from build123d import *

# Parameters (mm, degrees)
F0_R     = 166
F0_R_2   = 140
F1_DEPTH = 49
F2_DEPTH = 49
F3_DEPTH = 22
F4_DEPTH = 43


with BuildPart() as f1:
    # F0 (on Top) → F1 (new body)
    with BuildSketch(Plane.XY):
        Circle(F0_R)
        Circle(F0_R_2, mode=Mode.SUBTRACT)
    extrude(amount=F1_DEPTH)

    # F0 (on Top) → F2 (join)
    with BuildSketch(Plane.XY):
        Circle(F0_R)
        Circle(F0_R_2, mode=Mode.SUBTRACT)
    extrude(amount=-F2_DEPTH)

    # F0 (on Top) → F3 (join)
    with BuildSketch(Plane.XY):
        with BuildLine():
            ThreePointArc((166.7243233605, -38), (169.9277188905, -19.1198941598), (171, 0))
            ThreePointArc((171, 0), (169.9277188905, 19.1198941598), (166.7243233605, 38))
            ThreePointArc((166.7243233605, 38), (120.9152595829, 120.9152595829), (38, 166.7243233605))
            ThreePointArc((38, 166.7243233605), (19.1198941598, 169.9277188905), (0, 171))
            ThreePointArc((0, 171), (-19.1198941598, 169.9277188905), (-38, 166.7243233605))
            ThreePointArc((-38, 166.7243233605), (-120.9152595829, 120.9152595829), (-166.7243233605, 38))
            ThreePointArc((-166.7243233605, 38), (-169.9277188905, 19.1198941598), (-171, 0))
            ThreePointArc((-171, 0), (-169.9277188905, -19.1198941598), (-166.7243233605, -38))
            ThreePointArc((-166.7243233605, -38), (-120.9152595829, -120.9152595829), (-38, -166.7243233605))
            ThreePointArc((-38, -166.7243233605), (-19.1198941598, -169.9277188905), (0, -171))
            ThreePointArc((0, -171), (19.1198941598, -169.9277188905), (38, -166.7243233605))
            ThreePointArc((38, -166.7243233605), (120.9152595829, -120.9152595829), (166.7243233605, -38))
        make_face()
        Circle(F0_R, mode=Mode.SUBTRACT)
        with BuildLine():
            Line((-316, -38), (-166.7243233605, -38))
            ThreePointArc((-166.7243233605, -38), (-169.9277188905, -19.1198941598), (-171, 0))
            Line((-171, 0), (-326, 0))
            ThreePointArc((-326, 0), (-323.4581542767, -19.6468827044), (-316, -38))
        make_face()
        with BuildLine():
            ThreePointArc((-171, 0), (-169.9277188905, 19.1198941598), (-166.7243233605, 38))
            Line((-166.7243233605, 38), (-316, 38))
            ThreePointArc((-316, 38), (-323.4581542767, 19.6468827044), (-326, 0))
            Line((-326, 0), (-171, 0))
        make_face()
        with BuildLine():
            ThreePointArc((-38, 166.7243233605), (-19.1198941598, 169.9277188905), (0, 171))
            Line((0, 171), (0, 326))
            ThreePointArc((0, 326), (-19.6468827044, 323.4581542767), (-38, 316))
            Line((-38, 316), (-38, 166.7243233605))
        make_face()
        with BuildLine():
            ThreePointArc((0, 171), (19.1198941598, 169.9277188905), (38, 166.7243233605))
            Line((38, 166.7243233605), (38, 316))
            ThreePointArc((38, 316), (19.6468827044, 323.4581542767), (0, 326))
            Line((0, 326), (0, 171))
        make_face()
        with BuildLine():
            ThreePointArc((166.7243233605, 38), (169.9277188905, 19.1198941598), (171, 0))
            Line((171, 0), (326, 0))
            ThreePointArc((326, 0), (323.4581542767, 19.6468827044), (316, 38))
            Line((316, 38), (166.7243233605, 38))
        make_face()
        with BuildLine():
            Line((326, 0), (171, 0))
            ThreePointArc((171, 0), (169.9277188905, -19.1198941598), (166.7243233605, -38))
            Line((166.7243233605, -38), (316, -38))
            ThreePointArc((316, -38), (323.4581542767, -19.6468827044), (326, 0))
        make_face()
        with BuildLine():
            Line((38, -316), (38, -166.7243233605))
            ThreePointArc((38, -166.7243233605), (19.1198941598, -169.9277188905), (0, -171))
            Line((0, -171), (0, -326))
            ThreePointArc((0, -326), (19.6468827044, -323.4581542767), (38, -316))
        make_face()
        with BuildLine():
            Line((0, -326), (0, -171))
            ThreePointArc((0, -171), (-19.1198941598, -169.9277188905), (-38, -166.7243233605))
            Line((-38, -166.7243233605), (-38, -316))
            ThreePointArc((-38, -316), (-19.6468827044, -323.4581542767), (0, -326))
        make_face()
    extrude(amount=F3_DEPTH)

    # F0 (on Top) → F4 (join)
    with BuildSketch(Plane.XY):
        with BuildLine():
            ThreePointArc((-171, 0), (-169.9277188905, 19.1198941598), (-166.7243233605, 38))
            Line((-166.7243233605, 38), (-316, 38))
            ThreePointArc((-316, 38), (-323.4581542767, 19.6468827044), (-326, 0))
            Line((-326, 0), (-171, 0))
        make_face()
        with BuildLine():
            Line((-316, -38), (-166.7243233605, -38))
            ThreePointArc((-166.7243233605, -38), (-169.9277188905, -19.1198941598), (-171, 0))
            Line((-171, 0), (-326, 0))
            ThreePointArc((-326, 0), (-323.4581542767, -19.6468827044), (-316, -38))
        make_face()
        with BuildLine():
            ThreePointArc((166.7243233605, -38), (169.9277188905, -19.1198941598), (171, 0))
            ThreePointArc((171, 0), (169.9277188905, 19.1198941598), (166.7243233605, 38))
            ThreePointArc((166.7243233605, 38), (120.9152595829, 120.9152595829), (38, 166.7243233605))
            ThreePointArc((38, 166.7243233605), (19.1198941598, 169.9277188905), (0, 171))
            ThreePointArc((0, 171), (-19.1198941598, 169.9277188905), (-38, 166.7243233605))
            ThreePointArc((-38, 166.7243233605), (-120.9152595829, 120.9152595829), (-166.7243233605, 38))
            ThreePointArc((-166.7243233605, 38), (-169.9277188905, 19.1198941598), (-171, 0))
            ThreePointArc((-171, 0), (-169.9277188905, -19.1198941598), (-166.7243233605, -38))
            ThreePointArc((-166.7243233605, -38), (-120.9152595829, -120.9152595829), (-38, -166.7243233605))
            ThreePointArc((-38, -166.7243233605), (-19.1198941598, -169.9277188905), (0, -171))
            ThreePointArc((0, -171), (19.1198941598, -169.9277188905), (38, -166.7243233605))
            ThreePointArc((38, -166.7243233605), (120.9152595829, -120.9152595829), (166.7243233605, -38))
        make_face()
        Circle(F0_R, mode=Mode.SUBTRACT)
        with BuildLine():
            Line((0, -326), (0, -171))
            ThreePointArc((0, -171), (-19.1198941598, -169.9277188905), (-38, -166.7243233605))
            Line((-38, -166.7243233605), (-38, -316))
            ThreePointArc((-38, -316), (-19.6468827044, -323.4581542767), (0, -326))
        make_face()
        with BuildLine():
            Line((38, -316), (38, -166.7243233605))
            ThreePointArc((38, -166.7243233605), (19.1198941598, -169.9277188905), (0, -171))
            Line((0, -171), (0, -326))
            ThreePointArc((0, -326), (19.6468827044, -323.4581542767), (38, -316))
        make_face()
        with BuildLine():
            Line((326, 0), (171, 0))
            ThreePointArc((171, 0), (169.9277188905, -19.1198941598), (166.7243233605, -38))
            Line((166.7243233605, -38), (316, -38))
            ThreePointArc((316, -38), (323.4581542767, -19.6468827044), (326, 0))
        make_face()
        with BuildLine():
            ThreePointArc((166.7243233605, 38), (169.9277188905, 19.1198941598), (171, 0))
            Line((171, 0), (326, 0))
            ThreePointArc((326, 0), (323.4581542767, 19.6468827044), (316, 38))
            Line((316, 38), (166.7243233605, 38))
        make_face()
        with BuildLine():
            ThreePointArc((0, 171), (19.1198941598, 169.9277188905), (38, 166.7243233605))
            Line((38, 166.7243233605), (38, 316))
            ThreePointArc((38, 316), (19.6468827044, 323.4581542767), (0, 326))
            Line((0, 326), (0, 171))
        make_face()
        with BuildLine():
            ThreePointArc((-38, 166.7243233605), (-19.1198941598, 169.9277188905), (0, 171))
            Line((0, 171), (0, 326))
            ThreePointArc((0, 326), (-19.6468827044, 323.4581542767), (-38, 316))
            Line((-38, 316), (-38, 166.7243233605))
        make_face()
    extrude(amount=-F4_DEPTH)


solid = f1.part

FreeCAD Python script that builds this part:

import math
import FreeCAD as App
import Part
import Sketcher

V = App.Vector

doc = App.newDocument("Part")
body = doc.addObject("PartDesign::Body", "Body")

sketch1 = body.newObject("Sketcher::SketchObject", "Sketch")
sketch1.AttachmentSupport = (doc.getObject("XY_Plane"), [""])
sketch1.MapMode = "FlatFace"
sketch1.addGeometry([
    Part.Circle(V(0, 0, 0), V(0, 0, 1), 166),
    Part.Circle(V(0, 0, 0), V(0, 0, 1), 140),
], False)
sketch1.addConstraint([
    Sketcher.Constraint("Coincident", 0, 3, -1, 1),
    Sketcher.Constraint("Coincident", 1, 3, -1, 1),
    Sketcher.Constraint("Diameter", 0, 332.0),
    Sketcher.Constraint("Diameter", 1, 280.0),
])
pad1 = body.newObject("PartDesign::Pad", "Pad")
pad1.Profile = sketch1
pad1.Length = 49

sketch2 = body.newObject("Sketcher::SketchObject", "Sketch001")
sketch2.AttachmentSupport = (doc.getObject("XY_Plane"), [""])
sketch2.MapMode = "FlatFace"
sketch2.addGeometry([
    Part.Circle(V(0, 0, 0), V(0, 0, 1), 166),
    Part.Circle(V(0, 0, 0), V(0, 0, 1), 140),
], False)
sketch2.addConstraint([
    Sketcher.Constraint("Coincident", 0, 3, -1, 1),
    Sketcher.Constraint("Coincident", 1, 3, -1, 1),
    Sketcher.Constraint("Diameter", 0, 332.0),
    Sketcher.Constraint("Diameter", 1, 280.0),
])
pad2 = body.newObject("PartDesign::Pad", "Pad001")
pad2.Profile = sketch2
pad2.Length = 49
pad2.Reversed = True

sketch3 = body.newObject("Sketcher::SketchObject", "Sketch002")
sketch3.AttachmentSupport = (doc.getObject("XY_Plane"), [""])
sketch3.MapMode = "FlatFace"
sketch3.addGeometry([
    Part.ArcOfCircle(Part.Circle(V(249, 0, 0), V(0, 0, 1), 77), math.radians(0), math.radians(29)),
    Part.LineSegment(V(316, 38, 0), V(167, 38, 0)),
    Part.ArcOfCircle(Part.Circle(V(0, 0, 0), V(0, 0, 1), 171), math.radians(13), math.radians(77)),
    Part.LineSegment(V(38, 167, 0), V(38, 316, 0)),
    Part.ArcOfCircle(Part.Circle(V(0, 249, 0), V(0, 0, 1), 77), math.radians(61), math.radians(90)),
    Part.ArcOfCircle(Part.Circle(V(0, 249, 0), V(0, 0, 1), 77), math.radians(90), math.radians(119)),
    Part.LineSegment(V(-38, 316, 0), V(-38, 167, 0)),
    Part.ArcOfCircle(Part.Circle(V(0, 0, 0), V(0, 0, 1), 171), math.radians(103), math.radians(167)),
    Part.LineSegment(V(-167, 38, 0), V(-316, 38, 0)),
    Part.ArcOfCircle(Part.Circle(V(-249, 0, 0), V(0, 0, 1), 77), math.radians(151), math.radians(180)),
    Part.ArcOfCircle(Part.Circle(V(-249, 0, 0), V(0, 0, 1), 77), math.radians(180), math.radians(209)),
    Part.LineSegment(V(-316, -38, 0), V(-167, -38, 0)),
    Part.ArcOfCircle(Part.Circle(V(0, 0, 0), V(0, 0, 1), 171), math.radians(-167), math.radians(-103)),
    Part.LineSegment(V(-38, -167, 0), V(-38, -316, 0)),
    Part.ArcOfCircle(Part.Circle(V(0, -249, 0), V(0, 0, 1), 77), math.radians(-119), math.radians(-90)),
    Part.ArcOfCircle(Part.Circle(V(0, -249, 0), V(0, 0, 1), 77), math.radians(-90), math.radians(-61)),
    Part.LineSegment(V(38, -316, 0), V(38, -167, 0)),
    Part.ArcOfCircle(Part.Circle(V(0, 0, 0), V(0, 0, 1), 171), math.radians(-77), math.radians(-13)),
    Part.LineSegment(V(167, -38, 0), V(316, -38, 0)),
    Part.ArcOfCircle(Part.Circle(V(249, 0, 0), V(0, 0, 1), 77), math.radians(-29), math.radians(0)),
    Part.Circle(V(0, 0, 0), V(0, 0, 1), 166),
], False)
sketch3.addConstraint([
    Sketcher.Constraint("Coincident", 0, 2, 1, 1),
    Sketcher.Constraint("Coincident", 1, 2, 2, 1),
    Sketcher.Constraint("Coincident", 2, 2, 3, 1),
    Sketcher.Constraint("Coincident", 3, 2, 4, 1),
    Sketcher.Constraint("Tangent", 4, 2, 5, 1),
    Sketcher.Constraint("Coincident", 5, 2, 6, 1),
    Sketcher.Constraint("Coincident", 6, 2, 7, 1),
    Sketcher.Constraint("Coincident", 7, 2, 8, 1),
    Sketcher.Constraint("Coincident", 8, 2, 9, 1),
    Sketcher.Constraint("Tangent", 9, 2, 10, 1),
    Sketcher.Constraint("Coincident", 10, 2, 11, 1),
    Sketcher.Constraint("Coincident", 11, 2, 12, 1),
    Sketcher.Constraint("Coincident", 12, 2, 13, 1),
    Sketcher.Constraint("Coincident", 13, 2, 14, 1),
    Sketcher.Constraint("Tangent", 14, 2, 15, 1),
    Sketcher.Constraint("Coincident", 15, 2, 16, 1),
    Sketcher.Constraint("Coincident", 16, 2, 17, 1),
    Sketcher.Constraint("Coincident", 17, 2, 18, 1),
    Sketcher.Constraint("Coincident", 18, 2, 19, 1),
    Sketcher.Constraint("Tangent", 19, 2, 0, 1),
    Sketcher.Constraint("Horizontal", 1),
    Sketcher.Constraint("Vertical", 3),
    Sketcher.Constraint("Vertical", 6),
    Sketcher.Constraint("Horizontal", 8),
    Sketcher.Constraint("Horizontal", 11),
    Sketcher.Constraint("Vertical", 13),
    Sketcher.Constraint("Vertical", 16),
    Sketcher.Constraint("Horizontal", 18),
    Sketcher.Constraint("Coincident", 2, 3, -1, 1),
    Sketcher.Constraint("Coincident", 7, 3, -1, 1),
    Sketcher.Constraint("Coincident", 12, 3, -1, 1),
    Sketcher.Constraint("Coincident", 17, 3, -1, 1),
    Sketcher.Constraint("Coincident", 20, 3, -1, 1),
    Sketcher.Constraint("Equal", 0, 4),
    Sketcher.Constraint("Equal", 4, 5),
    Sketcher.Constraint("Equal", 2, 7),
    Sketcher.Constraint("Equal", 5, 9),
    Sketcher.Constraint("Equal", 9, 10),
    Sketcher.Constraint("Equal", 7, 12),
    Sketcher.Constraint("Equal", 10, 14),
    Sketcher.Constraint("Equal", 14, 15),
    Sketcher.Constraint("Equal", 12, 17),
    Sketcher.Constraint("Equal", 15, 19),
    Sketcher.Constraint("Symmetric", 0, 3, 9, 3, -1, 1),
    Sketcher.Constraint("Symmetric", 4, 3, 14, 3, -1, 1),
    Sketcher.Constraint("Symmetric", 3, 2, 5, 2, -2),
    Sketcher.Constraint("Symmetric", 0, 2, 8, 2, -2),
    Sketcher.Constraint("PointOnObject", 4, 2, -2),
    Sketcher.Constraint("PointOnObject", 9, 2, -1),
    Sketcher.Constraint("PointOnObject", 14, 2, -2),
    Sketcher.Constraint("PointOnObject", 19, 2, -1),
    Sketcher.Constraint("Horizontal", 13, 2, 15, 2),
    Sketcher.Constraint("Horizontal", 11, 2, 17, 2),
    Sketcher.Constraint("Vertical", 8, 2, 10, 2),
    Sketcher.Constraint("Vertical", 6, 2, 12, 2),
    Sketcher.Constraint("Equal", 18, 3),
    Sketcher.Constraint("Diameter", 20, 332.0),
    Sketcher.Constraint("Radius", 2, 171.0),
    Sketcher.Constraint("Radius", 0, 77.2),
    Sketcher.Constraint("DistanceX", -1, 1, 0, 2, 316.0),
    Sketcher.Constraint("DistanceY", -1, 1, 0, 2, 38.0),
    Sketcher.Constraint("DistanceX", -1, 1, 2, 2, 38.0),
])
pad3 = body.newObject("PartDesign::Pad", "Pad002")
pad3.Profile = sketch3
pad3.Length = 22

sketch4 = body.newObject("Sketcher::SketchObject", "Sketch003")
sketch4.AttachmentSupport = (doc.getObject("XY_Plane"), [""])
sketch4.MapMode = "FlatFace"
sketch4.addGeometry([
    Part.LineSegment(V(-167, 38, 0), V(-316, 38, 0)),
    Part.ArcOfCircle(Part.Circle(V(-249, 0, 0), V(0, 0, 1), 77), math.radians(151), math.radians(180)),
    Part.ArcOfCircle(Part.Circle(V(-249, 0, 0), V(0, 0, 1), 77), math.radians(180), math.radians(209)),
    Part.LineSegment(V(-316, -38, 0), V(-167, -38, 0)),
    Part.ArcOfCircle(Part.Circle(V(0, 0, 0), V(0, 0, 1), 171), math.radians(-167), math.radians(-103)),
    Part.LineSegment(V(-38, -167, 0), V(-38, -316, 0)),
    Part.ArcOfCircle(Part.Circle(V(0, -249, 0), V(0, 0, 1), 77), math.radians(-119), math.radians(-90)),
    Part.ArcOfCircle(Part.Circle(V(0, -249, 0), V(0, 0, 1), 77), math.radians(-90), math.radians(-61)),
    Part.LineSegment(V(38, -316, 0), V(38, -167, 0)),
    Part.ArcOfCircle(Part.Circle(V(0, 0, 0), V(0, 0, 1), 171), math.radians(-77), math.radians(-13)),
    Part.LineSegment(V(167, -38, 0), V(316, -38, 0)),
    Part.ArcOfCircle(Part.Circle(V(249, 0, 0), V(0, 0, 1), 77), math.radians(-29), math.radians(0)),
    Part.ArcOfCircle(Part.Circle(V(249, 0, 0), V(0, 0, 1), 77), math.radians(0), math.radians(29)),
    Part.LineSegment(V(316, 38, 0), V(167, 38, 0)),
    Part.ArcOfCircle(Part.Circle(V(0, 0, 0), V(0, 0, 1), 171), math.radians(13), math.radians(77)),
    Part.LineSegment(V(38, 167, 0), V(38, 316, 0)),
    Part.ArcOfCircle(Part.Circle(V(0, 249, 0), V(0, 0, 1), 77), math.radians(61), math.radians(90)),
    Part.ArcOfCircle(Part.Circle(V(0, 249, 0), V(0, 0, 1), 77), math.radians(90), math.radians(119)),
    Part.LineSegment(V(-38, 316, 0), V(-38, 167, 0)),
    Part.ArcOfCircle(Part.Circle(V(0, 0, 0), V(0, 0, 1), 171), math.radians(103), math.radians(167)),
    Part.Circle(V(0, 0, 0), V(0, 0, 1), 166),
], False)
sketch4.addConstraint([
    Sketcher.Constraint("Coincident", 0, 2, 1, 1),
    Sketcher.Constraint("Tangent", 1, 2, 2, 1),
    Sketcher.Constraint("Coincident", 2, 2, 3, 1),
    Sketcher.Constraint("Coincident", 3, 2, 4, 1),
    Sketcher.Constraint("Coincident", 4, 2, 5, 1),
    Sketcher.Constraint("Coincident", 5, 2, 6, 1),
    Sketcher.Constraint("Tangent", 6, 2, 7, 1),
    Sketcher.Constraint("Coincident", 7, 2, 8, 1),
    Sketcher.Constraint("Coincident", 8, 2, 9, 1),
    Sketcher.Constraint("Coincident", 9, 2, 10, 1),
    Sketcher.Constraint("Coincident", 10, 2, 11, 1),
    Sketcher.Constraint("Tangent", 11, 2, 12, 1),
    Sketcher.Constraint("Coincident", 12, 2, 13, 1),
    Sketcher.Constraint("Coincident", 13, 2, 14, 1),
    Sketcher.Constraint("Coincident", 14, 2, 15, 1),
    Sketcher.Constraint("Coincident", 15, 2, 16, 1),
    Sketcher.Constraint("Tangent", 16, 2, 17, 1),
    Sketcher.Constraint("Coincident", 17, 2, 18, 1),
    Sketcher.Constraint("Coincident", 18, 2, 19, 1),
    Sketcher.Constraint("Coincident", 19, 2, 0, 1),
    Sketcher.Constraint("Horizontal", 0),
    Sketcher.Constraint("Horizontal", 3),
    Sketcher.Constraint("Vertical", 5),
    Sketcher.Constraint("Vertical", 8),
    Sketcher.Constraint("Horizontal", 10),
    Sketcher.Constraint("Horizontal", 13),
    Sketcher.Constraint("Vertical", 15),
    Sketcher.Constraint("Vertical", 18),
    Sketcher.Constraint("Coincident", 4, 3, -1, 1),
    Sketcher.Constraint("Coincident", 9, 3, -1, 1),
    Sketcher.Constraint("Coincident", 14, 3, -1, 1),
    Sketcher.Constraint("Coincident", 19, 3, -1, 1),
    Sketcher.Constraint("Coincident", 20, 3, -1, 1),
    Sketcher.Constraint("Equal", 1, 2),
    Sketcher.Constraint("Equal", 2, 6),
    Sketcher.Constraint("Equal", 6, 7),
    Sketcher.Constraint("Equal", 4, 9),
    Sketcher.Constraint("Equal", 7, 11),
    Sketcher.Constraint("Equal", 11, 12),
    Sketcher.Constraint("Equal", 9, 14),
    Sketcher.Constraint("Equal", 12, 16),
    Sketcher.Constraint("Equal", 16, 17),
    Sketcher.Constraint("Equal", 14, 19),
    Sketcher.Constraint("Symmetric", 1, 3, 11, 3, -1, 1),
    Sketcher.Constraint("Symmetric", 6, 3, 16, 3, -1, 1),
    Sketcher.Constraint("Symmetric", 5, 2, 7, 2, -2),
    Sketcher.Constraint("Symmetric", 2, 2, 10, 2, -2),
    Sketcher.Constraint("PointOnObject", 1, 2, -1),
    Sketcher.Constraint("PointOnObject", 6, 2, -2),
    Sketcher.Constraint("PointOnObject", 11, 2, -1),
    Sketcher.Constraint("PointOnObject", 16, 2, -2),
    Sketcher.Constraint("Horizontal", 0, 2, 12, 2),
    Sketcher.Constraint("Horizontal", 15, 2, 17, 2),
    Sketcher.Constraint("Vertical", 0, 2, 2, 2),
    Sketcher.Constraint("Vertical", 8, 2, 14, 2),
    Sketcher.Constraint("Equal", 13, 5),
    Sketcher.Constraint("Diameter", 20, 332.0),
    Sketcher.Constraint("Radius", 4, 171.0),
    Sketcher.Constraint("Radius", 1, 77.2),
    Sketcher.Constraint("DistanceX", 0, 2, -1, 1, 316.0),
    Sketcher.Constraint("DistanceY", -1, 1, 0, 2, 38.0),
    Sketcher.Constraint("DistanceX", 4, 2, -1, 1, 38.0),
])
pad4 = body.newObject("PartDesign::Pad", "Pad003")
pad4.Profile = sketch4
pad4.Length = 43
pad4.Reversed = True

doc.recompute()
